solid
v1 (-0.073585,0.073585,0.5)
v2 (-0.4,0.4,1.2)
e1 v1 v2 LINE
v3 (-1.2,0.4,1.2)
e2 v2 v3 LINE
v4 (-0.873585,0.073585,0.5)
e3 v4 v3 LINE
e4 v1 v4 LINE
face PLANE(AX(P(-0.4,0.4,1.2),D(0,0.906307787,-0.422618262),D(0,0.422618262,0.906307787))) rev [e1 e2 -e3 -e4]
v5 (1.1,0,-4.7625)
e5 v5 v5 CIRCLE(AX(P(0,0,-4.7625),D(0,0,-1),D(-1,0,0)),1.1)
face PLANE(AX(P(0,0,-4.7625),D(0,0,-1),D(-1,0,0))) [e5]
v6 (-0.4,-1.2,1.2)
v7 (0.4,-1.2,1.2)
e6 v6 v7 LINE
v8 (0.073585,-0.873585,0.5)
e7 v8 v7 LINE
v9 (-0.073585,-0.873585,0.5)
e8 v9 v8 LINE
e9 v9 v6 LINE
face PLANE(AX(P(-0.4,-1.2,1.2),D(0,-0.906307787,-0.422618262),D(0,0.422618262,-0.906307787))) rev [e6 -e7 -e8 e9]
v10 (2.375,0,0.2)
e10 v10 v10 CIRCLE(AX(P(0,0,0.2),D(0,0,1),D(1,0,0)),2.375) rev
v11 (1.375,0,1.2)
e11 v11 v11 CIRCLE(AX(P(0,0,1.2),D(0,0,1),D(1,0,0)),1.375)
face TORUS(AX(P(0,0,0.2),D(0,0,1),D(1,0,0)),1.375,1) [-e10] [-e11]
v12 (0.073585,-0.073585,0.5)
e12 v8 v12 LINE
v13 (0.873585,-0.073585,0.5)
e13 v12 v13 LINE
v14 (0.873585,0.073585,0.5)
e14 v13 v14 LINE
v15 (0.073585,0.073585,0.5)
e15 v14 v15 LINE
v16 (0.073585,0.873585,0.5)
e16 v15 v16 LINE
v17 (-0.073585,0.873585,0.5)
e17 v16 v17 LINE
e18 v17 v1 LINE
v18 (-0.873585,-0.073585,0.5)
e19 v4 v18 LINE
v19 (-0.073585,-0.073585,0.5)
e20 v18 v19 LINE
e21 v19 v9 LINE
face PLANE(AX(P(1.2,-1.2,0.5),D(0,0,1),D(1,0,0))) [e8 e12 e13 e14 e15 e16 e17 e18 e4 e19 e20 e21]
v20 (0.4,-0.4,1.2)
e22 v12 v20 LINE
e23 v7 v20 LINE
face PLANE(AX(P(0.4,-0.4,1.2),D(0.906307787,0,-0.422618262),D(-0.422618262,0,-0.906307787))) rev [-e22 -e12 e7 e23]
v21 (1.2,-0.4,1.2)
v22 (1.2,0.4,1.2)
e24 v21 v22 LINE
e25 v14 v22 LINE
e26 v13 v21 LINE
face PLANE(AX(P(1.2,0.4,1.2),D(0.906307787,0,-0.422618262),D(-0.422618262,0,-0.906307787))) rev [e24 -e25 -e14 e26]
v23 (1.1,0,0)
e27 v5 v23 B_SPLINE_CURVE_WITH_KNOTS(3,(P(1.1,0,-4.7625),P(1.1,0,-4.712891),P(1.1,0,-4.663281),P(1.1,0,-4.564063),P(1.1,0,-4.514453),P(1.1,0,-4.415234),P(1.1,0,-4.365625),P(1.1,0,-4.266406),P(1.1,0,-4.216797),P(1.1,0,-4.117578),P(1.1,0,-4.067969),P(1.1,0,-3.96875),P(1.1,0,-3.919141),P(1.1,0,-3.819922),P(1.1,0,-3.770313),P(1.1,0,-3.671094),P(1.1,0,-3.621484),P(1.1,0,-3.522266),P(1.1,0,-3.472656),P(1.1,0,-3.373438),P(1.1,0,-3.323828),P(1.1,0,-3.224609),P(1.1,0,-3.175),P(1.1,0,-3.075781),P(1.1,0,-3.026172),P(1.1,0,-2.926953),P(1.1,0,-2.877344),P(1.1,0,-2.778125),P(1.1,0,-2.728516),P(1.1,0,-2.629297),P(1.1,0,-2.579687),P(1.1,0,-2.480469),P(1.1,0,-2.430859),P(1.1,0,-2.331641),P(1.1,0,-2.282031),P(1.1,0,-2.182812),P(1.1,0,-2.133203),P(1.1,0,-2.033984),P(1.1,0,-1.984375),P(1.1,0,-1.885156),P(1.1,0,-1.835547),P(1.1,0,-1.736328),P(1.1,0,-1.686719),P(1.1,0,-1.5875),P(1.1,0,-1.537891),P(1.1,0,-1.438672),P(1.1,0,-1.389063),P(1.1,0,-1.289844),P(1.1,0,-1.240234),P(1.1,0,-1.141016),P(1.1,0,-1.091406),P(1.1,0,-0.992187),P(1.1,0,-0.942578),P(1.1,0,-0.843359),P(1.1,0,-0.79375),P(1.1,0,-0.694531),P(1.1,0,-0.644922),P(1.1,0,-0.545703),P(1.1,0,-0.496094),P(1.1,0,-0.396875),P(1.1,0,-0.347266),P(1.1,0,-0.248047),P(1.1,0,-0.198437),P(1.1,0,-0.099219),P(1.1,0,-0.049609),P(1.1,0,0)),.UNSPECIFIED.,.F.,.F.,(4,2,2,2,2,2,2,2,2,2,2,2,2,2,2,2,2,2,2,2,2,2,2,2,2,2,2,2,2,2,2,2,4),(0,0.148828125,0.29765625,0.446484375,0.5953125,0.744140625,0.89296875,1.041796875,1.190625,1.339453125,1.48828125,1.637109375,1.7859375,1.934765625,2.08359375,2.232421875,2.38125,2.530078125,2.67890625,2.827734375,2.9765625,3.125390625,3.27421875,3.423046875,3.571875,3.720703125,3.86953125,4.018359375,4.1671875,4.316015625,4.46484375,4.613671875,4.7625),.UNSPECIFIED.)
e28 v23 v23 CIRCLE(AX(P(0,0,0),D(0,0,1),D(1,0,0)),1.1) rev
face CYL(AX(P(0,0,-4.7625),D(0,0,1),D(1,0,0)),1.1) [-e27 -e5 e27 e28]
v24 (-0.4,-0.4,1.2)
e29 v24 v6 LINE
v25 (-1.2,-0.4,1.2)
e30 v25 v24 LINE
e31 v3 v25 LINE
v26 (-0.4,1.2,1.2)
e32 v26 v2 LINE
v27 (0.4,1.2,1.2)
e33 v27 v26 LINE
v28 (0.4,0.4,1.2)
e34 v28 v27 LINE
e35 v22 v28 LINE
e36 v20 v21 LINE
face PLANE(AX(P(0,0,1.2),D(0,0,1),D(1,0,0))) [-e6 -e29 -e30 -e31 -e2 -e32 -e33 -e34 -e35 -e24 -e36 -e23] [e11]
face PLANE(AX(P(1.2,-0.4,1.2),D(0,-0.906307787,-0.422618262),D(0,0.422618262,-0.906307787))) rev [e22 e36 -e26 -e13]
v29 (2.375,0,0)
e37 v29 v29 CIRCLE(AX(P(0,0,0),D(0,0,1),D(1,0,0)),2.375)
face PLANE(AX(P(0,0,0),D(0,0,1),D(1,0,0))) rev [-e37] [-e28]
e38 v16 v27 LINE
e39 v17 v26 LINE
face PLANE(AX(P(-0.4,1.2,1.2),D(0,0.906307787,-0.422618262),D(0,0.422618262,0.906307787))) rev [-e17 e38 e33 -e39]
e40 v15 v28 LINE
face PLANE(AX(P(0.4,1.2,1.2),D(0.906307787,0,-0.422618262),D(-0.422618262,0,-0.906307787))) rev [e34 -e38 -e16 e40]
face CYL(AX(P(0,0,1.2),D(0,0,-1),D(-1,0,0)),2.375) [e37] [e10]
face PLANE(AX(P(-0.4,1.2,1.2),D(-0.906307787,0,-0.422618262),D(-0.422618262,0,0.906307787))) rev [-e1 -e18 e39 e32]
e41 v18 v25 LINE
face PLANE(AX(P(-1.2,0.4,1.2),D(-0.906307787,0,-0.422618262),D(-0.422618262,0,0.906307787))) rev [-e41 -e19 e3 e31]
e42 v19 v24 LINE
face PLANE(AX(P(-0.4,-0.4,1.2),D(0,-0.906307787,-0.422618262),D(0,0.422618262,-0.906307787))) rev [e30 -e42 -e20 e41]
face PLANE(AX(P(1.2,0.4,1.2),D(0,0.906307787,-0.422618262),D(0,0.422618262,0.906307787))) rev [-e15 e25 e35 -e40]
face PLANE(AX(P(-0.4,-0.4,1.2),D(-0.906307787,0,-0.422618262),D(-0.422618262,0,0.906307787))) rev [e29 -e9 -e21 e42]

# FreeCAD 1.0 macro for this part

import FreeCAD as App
import Part
import Sketcher

V = App.Vector
Q = App.Units.Quantity


def edges_at(feature, points):
    """Names of the edges that pass closest to the given points."""
    edges = feature.Shape.Edges
    near = lambda p: min(range(len(edges)), key=lambda i: edges[i].distToShape(Part.Vertex(*p))[0])
    return sorted({f"Edge{near(p) + 1}" for p in points})


def faces_at(feature, points):
    """Names of the faces that lie closest to the given points."""
    faces = feature.Shape.Faces
    near = lambda p: min(range(len(faces)), key=lambda i: faces[i].distToShape(Part.Vertex(*p))[0])
    return sorted({f"Face{near(p) + 1}" for p in points})

doc = App.newDocument("Part")
params = doc.addObject("Spreadsheet::Sheet", "Params")
for row, (alias, value) in enumerate([
    ("sketch1_diameter", "4.75 mm"),
    ("pad1_length", "1.2 mm"),
    ("fillet_radius", "1 mm"),
    ("sketch2_width", "0.8 mm"),
    ("pad2_length", "0.7 mm"),
    ("draft_angle", "25 deg"),
    ("sketch3_diameter", "2.2 mm"),
    ("pad3_length", "4.7625 mm"),
], start=1):
    params.set(f"A{row}", alias)
    params.set(f"B{row}", "=" + value)
    params.setAlias(f"B{row}", alias)

body = doc.addObject("PartDesign::Body", "Body")

sketch1 = body.newObject("Sketcher::SketchObject", "Sketch")
sketch1.AttachmentSupport = (doc.getObject("XY_Plane"), [""])
sketch1.MapMode = "FlatFace"
sketch1.addGeometry(Part.Circle(V(0, 0, 0), V(0, 0, 1), 2.4), False)
sketch1.addConstraint([
    Sketcher.Constraint("Coincident", 0, 3, -1, 1),
    Sketcher.Constraint("Diameter", 0, Q("4.75 mm")),
])
sketch1.setExpression("Constraints[1]", "Params.sketch1_diameter")
pad1 = body.newObject("PartDesign::Pad", "Pad")
pad1.Profile = sketch1
pad1.setExpression("Length", "Params.pad1_length")
doc.recompute()

fillet = body.newObject("PartDesign::Fillet", "Fillet")
fillet.Base = (pad1, edges_at(pad1, [(-2.375, 0, 1.2)]))
fillet.setExpression("Radius", "Params.fillet_radius")
body2 = doc.addObject("PartDesign::Body", "Body001")

sketch2 = body2.newObject("Sketcher::SketchObject", "Sketch001")
sketch2.AttachmentSupport = (doc.getObject("XY_Plane001"), [""])
sketch2.MapMode = "FlatFace"
sketch2.AttachmentOffset = App.Placement(V(0, 0, 1.2), App.Rotation())
sketch2.addGeometry([
    Part.LineSegment(V(-0.4, 0.4, 0), V(-1.2, 0.4, 0)),
    Part.LineSegment(V(-1.2, 0.4, 0), V(-1.2, -0.4, 0)),
    Part.LineSegment(V(-1.2, -0.4, 0), V(-0.4, -0.4, 0)),
    Part.LineSegment(V(-0.4, -0.4, 0), V(-0.4, -1.2, 0)),
    Part.LineSegment(V(-0.4, -1.2, 0), V(0.4, -1.2, 0)),
    Part.LineSegment(V(0.4, -1.2, 0), V(0.4, -0.4, 0)),
    Part.LineSegment(V(0.4, -0.4, 0), V(1.2, -0.4, 0)),
    Part.LineSegment(V(1.2, -0.4, 0), V(1.2, 0.4, 0)),
    Part.LineSegment(V(1.2, 0.4, 0), V(0.4, 0.4, 0)),
    Part.LineSegment(V(0.4, 0.4, 0), V(0.4, 1.2, 0)),
    Part.LineSegment(V(0.4, 1.2, 0), V(-0.4, 1.2, 0)),
    Part.LineSegment(V(-0.4, 1.2, 0), V(-0.4, 0.4, 0)),
], False)
sketch2.addConstraint([
    Sketcher.Constraint("Coincident", 0, 2, 1, 1),
    Sketcher.Constraint("Coincident", 1, 2, 2, 1),
    Sketcher.Constraint("Coincident", 2, 2, 3, 1),
    Sketcher.Constraint("Coincident", 3, 2, 4, 1),
    Sketcher.Constraint("Coincident", 4, 2, 5, 1),
    Sketcher.Constraint("Coincident", 5, 2, 6, 1),
    Sketcher.Constraint("Coincident", 6, 2, 7, 1),
    Sketcher.Constraint("Coincident", 7, 2, 8, 1),
    Sketcher.Constraint("Coincident", 8, 2, 9, 1),
    Sketcher.Constraint("Coincident", 9, 2, 10, 1),
    Sketcher.Constraint("Coincident", 10, 2, 11, 1),
    Sketcher.Constraint("Coincident", 11, 2, 0, 1),
    Sketcher.Constraint("Horizontal", 0),
    Sketcher.Constraint("Vertical", 1),
    Sketcher.Constraint("Horizontal", 2),
    Sketcher.Constraint("Vertical", 3),
    Sketcher.Constraint("Horizontal", 4),
    Sketcher.Constraint("Vertical", 5),
    Sketcher.Constraint("Horizontal", 6),
    Sketcher.Constraint("Vertical", 7),
    Sketcher.Constraint("Horizontal", 8),
    Sketcher.Constraint("Vertical", 9),
    Sketcher.Constraint("Horizontal", 10),
    Sketcher.Constraint("Vertical", 11),
    Sketcher.Constraint("Symmetric", 0, 2, 6, 2, -1, 1),
    Sketcher.Constraint("Symmetric", 2, 2, 8, 2, -1, 1),
    Sketcher.Constraint("Symmetric", 4, 2, 10, 2, -1, 1),
    Sketcher.Constraint("Symmetric", 2, 2, 5, 2, -2),
    Sketcher.Constraint("Equal", 2, 4),
    Sketcher.Constraint("Equal", 10, 1),
    Sketcher.Constraint("Equal", 1, 3),
    Sketcher.Constraint("DistanceX", 0, 2, 0, 1, Q("0.8 mm")),
])
sketch2.setExpression("Constraints[31]", "Params.sketch2_width")
pad2 = body2.newObject("PartDesign::Pad", "Pad001")
pad2.Profile = sketch2
pad2.setExpression("Length", "Params.pad2_length")
pad2.Reversed = True
doc.recompute()

datumplane = body2.newObject("PartDesign::Plane", "DatumPlane")
datumplane.AttachmentSupport = (doc.getObject("XY_Plane001"), [""])
datumplane.MapMode = "FlatFace"
datumplane.AttachmentOffset = App.Placement(V(0, 0, 1.2), App.Rotation())
draft = body2.newObject("PartDesign::Draft", "Draft")
draft.Base = (pad2, faces_at(pad2, [
    (-0.8, 0.4, 0.85),
    (-1.2, 0, 0.85),
    (-0.8, -0.4, 0.85),
    (-0.4, -0.8, 0.85),
    (0, -1.2, 0.85),
    (0.4, -0.8, 0.85),
    (0.8, -0.4, 0.85),
    (1.2, 0, 0.85),
    (0.8, 0.4, 0.85),
    (0.4, 0.8, 0.85),
    (0, 1.2, 0.85),
    (-0.4, 0.8, 0.85),
]))
draft.NeutralPlane = (datumplane, [""])
draft.setExpression("Angle", "Params.draft_angle")
draft.Reversed = True
doc.recompute()

boolean = body.newObject("PartDesign::Boolean", "Boolean")
boolean.Type = "Cut"
boolean.addObjects([body2])

sketch3 = body.newObject("Sketcher::SketchObject", "Sketch002")
sketch3.AttachmentSupport = (doc.getObject("XY_Plane"), [""])
sketch3.MapMode = "FlatFace"
sketch3.addGeometry(Part.Circle(V(0, 0, 0), V(0, 0, 1), 1.1), False)
sketch3.addConstraint([
    Sketcher.Constraint("Coincident", 0, 3, -1, 1),
    Sketcher.Constraint("Diameter", 0, Q("2.2 mm")),
])
sketch3.setExpression("Constraints[1]", "Params.sketch3_diameter")
pad3 = body.newObject("PartDesign::Pad", "Pad002")
pad3.Profile = sketch3
pad3.setExpression("Length", "Params.pad3_length")
pad3.Reversed = True

doc.recompute()
